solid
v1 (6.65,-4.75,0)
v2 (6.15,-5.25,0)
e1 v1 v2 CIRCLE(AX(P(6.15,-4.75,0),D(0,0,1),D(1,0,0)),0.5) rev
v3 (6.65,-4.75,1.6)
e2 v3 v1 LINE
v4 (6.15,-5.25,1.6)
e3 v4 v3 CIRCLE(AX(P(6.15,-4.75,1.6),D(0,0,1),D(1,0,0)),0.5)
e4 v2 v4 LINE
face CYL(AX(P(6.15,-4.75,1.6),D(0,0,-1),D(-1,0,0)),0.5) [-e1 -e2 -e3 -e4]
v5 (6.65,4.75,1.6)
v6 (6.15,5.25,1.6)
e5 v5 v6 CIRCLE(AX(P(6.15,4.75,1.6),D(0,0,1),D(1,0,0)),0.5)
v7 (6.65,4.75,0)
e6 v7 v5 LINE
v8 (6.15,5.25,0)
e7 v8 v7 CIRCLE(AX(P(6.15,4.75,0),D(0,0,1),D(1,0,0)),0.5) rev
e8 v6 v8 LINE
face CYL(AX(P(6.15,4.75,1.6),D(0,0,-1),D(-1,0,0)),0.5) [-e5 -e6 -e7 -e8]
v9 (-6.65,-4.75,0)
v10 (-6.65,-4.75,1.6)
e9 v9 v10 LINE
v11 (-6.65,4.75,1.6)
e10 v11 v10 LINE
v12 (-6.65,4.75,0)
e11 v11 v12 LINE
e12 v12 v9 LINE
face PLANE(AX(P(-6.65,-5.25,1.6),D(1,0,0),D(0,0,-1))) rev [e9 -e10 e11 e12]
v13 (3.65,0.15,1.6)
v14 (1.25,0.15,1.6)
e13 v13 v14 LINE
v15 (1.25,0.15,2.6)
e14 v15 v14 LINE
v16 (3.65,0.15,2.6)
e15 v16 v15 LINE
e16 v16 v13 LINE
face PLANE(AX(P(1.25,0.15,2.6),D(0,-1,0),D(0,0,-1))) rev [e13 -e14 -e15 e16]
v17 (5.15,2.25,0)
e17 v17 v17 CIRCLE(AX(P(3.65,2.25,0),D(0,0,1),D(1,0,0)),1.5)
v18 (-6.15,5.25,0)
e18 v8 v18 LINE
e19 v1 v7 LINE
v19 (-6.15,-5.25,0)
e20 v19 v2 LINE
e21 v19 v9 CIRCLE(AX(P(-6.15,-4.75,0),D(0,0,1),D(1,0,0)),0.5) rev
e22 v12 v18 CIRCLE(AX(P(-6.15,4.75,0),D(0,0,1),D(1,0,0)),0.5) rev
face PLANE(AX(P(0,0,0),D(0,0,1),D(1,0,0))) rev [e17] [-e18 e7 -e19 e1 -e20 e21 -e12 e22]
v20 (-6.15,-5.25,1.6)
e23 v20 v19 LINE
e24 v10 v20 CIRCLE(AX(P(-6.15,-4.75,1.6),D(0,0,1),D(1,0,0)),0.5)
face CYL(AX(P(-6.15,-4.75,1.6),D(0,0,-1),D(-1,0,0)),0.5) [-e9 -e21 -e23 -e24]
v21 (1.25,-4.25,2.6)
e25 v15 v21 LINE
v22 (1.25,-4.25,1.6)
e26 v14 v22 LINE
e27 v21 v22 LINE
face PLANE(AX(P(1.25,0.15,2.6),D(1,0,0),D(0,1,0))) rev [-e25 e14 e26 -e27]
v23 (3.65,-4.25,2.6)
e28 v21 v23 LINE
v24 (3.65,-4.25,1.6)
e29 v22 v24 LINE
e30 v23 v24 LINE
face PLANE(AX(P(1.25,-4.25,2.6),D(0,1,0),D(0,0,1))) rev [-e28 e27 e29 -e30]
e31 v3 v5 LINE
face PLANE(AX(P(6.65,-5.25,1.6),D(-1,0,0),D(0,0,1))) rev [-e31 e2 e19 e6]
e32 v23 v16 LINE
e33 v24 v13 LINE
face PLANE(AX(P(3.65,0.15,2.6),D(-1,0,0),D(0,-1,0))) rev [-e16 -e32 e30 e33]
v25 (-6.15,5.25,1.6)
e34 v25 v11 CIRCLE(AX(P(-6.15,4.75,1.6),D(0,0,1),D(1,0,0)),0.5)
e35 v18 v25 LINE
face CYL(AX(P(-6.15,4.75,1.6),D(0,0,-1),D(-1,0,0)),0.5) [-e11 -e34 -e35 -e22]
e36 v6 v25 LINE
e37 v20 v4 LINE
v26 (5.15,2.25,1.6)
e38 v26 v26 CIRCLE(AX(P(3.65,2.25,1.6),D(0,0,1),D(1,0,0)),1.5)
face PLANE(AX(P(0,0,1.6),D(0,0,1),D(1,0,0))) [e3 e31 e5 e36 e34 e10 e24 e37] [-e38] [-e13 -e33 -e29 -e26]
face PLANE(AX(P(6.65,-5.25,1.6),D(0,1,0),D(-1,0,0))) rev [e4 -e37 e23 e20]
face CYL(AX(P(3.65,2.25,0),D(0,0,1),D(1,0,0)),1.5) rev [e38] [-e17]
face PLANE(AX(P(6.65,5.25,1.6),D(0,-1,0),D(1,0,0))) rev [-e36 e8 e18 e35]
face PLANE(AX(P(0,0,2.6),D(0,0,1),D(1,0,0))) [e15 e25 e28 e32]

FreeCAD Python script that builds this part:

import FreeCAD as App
import Part
import Sketcher
Q = App.Units.Quantity


def edges_at(feature, points):
    """Names of the edges that pass closest to the given points."""
    edges = feature.Shape.Edges
    near = lambda p: min(range(len(edges)), key=lambda i: edges[i].distToShape(Part.Vertex(*p))[0])
    return sorted({f"Edge{near(p) + 1}" for p in points})


def add_polygon(sketch, points):
    """Adds a closed chain of lines whose ends are joined by coincident constraints."""
    first, n = sketch.GeometryCount, len(points)
    for a, b in zip(points, points[1:] + points[:1]):
        sketch.addGeometry(Part.LineSegment(App.Vector(*a, 0), App.Vector(*b, 0)), False)
    for i in range(n):
        sketch.addConstraint(Sketcher.Constraint("Coincident", first + i, 2, first + (i + 1) % n, 1))

doc = App.newDocument("Part")
body = doc.addObject("PartDesign::Body", "Body")

# Sketch on XY plane
sketch1 = body.newObject("Sketcher::SketchObject", "Sketch")
sketch1.AttachmentSupport = (doc.getObject("XY_Plane"), [""])
sketch1.MapMode = "FlatFace"
add_polygon(sketch1, [(-6.65, 5.25), (-6.65, -5.25), (6.65, -5.25), (6.65, 5.25)])  # lines 0-3
sketch1.addConstraint(Sketcher.Constraint("Vertical", 0))
sketch1.addConstraint(Sketcher.Constraint("Horizontal", 1))
sketch1.addConstraint(Sketcher.Constraint("Vertical", 2))
sketch1.addConstraint(Sketcher.Constraint("Horizontal", 3))
sketch1.addConstraint(Sketcher.Constraint("Symmetric", 0, 2, 2, 2, -1, 1))
sketch1.addConstraint(Sketcher.Constraint("DistanceX", 1, 1, 1, 2, Q("13.3 mm")))
sketch1.addConstraint(Sketcher.Constraint("DistanceY", 0, 2, 0, 1, Q("10.5 mm")))
pad1 = body.newObject("PartDesign::Pad", "Pad")
pad1.Profile = sketch1
pad1.Length = 1.6

# Sketch on XY plane
sketch2 = body.newObject("Sketcher::SketchObject", "Sketch001")
sketch2.AttachmentSupport = (doc.getObject("XY_Plane"), [""])
sketch2.MapMode = "FlatFace"
sketch2.AttachmentOffset = App.Placement(App.Vector(0, 0, 1.6), App.Rotation())
sketch2.addGeometry(Part.Circle(App.Vector(3.65, 2.25, 0), App.Vector(0, 0, 1), 1.5), False)
sketch2.addConstraint(Sketcher.Constraint("Diameter", 0, Q("3 mm")))
sketch2.addConstraint(Sketcher.Constraint("DistanceX", -1, 1, 0, 3, Q("3.65 mm")))
sketch2.addConstraint(Sketcher.Constraint("DistanceY", -1, 1, 0, 3, Q("2.25 mm")))
pocket1 = body.newObject("PartDesign::Pocket", "Pocket")
pocket1.Profile = sketch2
pocket1.Length = 1.6

# Sketch on XY plane
sketch3 = body.newObject("Sketcher::SketchObject", "Sketch002")
sketch3.AttachmentSupport = (doc.getObject("XY_Plane"), [""])
sketch3.MapMode = "FlatFace"
sketch3.AttachmentOffset = App.Placement(App.Vector(0, 0, 1.6), App.Rotation())
add_polygon(sketch3, [(1.25, 0.15), (1.25, -4.25), (3.65, -4.25), (3.65, 0.15)])  # lines 0-3
sketch3.addConstraint(Sketcher.Constraint("Vertical", 0))
sketch3.addConstraint(Sketcher.Constraint("Horizontal", 1))
sketch3.addConstraint(Sketcher.Constraint("Vertical", 2))
sketch3.addConstraint(Sketcher.Constraint("Horizontal", 3))
sketch3.addConstraint(Sketcher.Constraint("DistanceX", 1, 1, 1, 2, Q("2.4 mm")))
sketch3.addConstraint(Sketcher.Constraint("DistanceY", 0, 2, 0, 1, Q("4.4 mm")))
sketch3.addConstraint(Sketcher.Constraint("DistanceX", -1, 1, 0, 2, Q("1.25 mm")))
sketch3.addConstraint(Sketcher.Constraint("DistanceY", 0, 2, -1, 1, Q("4.25 mm")))
pad2 = body.newObject("PartDesign::Pad", "Pad001")
pad2.Profile = sketch3
pad2.Length = 1
doc.recompute()

fillet = body.newObject("PartDesign::Fillet", "Fillet")
fillet.Base = (pad2, edges_at(pad2, [
    (-6.65, 5.25, 0.8),
    (6.65, 5.25, 0.8),
    (6.65, -5.25, 0.8),
    (-6.65, -5.25, 0.8),
]))
fillet.Radius = 0.5

doc.recompute()
